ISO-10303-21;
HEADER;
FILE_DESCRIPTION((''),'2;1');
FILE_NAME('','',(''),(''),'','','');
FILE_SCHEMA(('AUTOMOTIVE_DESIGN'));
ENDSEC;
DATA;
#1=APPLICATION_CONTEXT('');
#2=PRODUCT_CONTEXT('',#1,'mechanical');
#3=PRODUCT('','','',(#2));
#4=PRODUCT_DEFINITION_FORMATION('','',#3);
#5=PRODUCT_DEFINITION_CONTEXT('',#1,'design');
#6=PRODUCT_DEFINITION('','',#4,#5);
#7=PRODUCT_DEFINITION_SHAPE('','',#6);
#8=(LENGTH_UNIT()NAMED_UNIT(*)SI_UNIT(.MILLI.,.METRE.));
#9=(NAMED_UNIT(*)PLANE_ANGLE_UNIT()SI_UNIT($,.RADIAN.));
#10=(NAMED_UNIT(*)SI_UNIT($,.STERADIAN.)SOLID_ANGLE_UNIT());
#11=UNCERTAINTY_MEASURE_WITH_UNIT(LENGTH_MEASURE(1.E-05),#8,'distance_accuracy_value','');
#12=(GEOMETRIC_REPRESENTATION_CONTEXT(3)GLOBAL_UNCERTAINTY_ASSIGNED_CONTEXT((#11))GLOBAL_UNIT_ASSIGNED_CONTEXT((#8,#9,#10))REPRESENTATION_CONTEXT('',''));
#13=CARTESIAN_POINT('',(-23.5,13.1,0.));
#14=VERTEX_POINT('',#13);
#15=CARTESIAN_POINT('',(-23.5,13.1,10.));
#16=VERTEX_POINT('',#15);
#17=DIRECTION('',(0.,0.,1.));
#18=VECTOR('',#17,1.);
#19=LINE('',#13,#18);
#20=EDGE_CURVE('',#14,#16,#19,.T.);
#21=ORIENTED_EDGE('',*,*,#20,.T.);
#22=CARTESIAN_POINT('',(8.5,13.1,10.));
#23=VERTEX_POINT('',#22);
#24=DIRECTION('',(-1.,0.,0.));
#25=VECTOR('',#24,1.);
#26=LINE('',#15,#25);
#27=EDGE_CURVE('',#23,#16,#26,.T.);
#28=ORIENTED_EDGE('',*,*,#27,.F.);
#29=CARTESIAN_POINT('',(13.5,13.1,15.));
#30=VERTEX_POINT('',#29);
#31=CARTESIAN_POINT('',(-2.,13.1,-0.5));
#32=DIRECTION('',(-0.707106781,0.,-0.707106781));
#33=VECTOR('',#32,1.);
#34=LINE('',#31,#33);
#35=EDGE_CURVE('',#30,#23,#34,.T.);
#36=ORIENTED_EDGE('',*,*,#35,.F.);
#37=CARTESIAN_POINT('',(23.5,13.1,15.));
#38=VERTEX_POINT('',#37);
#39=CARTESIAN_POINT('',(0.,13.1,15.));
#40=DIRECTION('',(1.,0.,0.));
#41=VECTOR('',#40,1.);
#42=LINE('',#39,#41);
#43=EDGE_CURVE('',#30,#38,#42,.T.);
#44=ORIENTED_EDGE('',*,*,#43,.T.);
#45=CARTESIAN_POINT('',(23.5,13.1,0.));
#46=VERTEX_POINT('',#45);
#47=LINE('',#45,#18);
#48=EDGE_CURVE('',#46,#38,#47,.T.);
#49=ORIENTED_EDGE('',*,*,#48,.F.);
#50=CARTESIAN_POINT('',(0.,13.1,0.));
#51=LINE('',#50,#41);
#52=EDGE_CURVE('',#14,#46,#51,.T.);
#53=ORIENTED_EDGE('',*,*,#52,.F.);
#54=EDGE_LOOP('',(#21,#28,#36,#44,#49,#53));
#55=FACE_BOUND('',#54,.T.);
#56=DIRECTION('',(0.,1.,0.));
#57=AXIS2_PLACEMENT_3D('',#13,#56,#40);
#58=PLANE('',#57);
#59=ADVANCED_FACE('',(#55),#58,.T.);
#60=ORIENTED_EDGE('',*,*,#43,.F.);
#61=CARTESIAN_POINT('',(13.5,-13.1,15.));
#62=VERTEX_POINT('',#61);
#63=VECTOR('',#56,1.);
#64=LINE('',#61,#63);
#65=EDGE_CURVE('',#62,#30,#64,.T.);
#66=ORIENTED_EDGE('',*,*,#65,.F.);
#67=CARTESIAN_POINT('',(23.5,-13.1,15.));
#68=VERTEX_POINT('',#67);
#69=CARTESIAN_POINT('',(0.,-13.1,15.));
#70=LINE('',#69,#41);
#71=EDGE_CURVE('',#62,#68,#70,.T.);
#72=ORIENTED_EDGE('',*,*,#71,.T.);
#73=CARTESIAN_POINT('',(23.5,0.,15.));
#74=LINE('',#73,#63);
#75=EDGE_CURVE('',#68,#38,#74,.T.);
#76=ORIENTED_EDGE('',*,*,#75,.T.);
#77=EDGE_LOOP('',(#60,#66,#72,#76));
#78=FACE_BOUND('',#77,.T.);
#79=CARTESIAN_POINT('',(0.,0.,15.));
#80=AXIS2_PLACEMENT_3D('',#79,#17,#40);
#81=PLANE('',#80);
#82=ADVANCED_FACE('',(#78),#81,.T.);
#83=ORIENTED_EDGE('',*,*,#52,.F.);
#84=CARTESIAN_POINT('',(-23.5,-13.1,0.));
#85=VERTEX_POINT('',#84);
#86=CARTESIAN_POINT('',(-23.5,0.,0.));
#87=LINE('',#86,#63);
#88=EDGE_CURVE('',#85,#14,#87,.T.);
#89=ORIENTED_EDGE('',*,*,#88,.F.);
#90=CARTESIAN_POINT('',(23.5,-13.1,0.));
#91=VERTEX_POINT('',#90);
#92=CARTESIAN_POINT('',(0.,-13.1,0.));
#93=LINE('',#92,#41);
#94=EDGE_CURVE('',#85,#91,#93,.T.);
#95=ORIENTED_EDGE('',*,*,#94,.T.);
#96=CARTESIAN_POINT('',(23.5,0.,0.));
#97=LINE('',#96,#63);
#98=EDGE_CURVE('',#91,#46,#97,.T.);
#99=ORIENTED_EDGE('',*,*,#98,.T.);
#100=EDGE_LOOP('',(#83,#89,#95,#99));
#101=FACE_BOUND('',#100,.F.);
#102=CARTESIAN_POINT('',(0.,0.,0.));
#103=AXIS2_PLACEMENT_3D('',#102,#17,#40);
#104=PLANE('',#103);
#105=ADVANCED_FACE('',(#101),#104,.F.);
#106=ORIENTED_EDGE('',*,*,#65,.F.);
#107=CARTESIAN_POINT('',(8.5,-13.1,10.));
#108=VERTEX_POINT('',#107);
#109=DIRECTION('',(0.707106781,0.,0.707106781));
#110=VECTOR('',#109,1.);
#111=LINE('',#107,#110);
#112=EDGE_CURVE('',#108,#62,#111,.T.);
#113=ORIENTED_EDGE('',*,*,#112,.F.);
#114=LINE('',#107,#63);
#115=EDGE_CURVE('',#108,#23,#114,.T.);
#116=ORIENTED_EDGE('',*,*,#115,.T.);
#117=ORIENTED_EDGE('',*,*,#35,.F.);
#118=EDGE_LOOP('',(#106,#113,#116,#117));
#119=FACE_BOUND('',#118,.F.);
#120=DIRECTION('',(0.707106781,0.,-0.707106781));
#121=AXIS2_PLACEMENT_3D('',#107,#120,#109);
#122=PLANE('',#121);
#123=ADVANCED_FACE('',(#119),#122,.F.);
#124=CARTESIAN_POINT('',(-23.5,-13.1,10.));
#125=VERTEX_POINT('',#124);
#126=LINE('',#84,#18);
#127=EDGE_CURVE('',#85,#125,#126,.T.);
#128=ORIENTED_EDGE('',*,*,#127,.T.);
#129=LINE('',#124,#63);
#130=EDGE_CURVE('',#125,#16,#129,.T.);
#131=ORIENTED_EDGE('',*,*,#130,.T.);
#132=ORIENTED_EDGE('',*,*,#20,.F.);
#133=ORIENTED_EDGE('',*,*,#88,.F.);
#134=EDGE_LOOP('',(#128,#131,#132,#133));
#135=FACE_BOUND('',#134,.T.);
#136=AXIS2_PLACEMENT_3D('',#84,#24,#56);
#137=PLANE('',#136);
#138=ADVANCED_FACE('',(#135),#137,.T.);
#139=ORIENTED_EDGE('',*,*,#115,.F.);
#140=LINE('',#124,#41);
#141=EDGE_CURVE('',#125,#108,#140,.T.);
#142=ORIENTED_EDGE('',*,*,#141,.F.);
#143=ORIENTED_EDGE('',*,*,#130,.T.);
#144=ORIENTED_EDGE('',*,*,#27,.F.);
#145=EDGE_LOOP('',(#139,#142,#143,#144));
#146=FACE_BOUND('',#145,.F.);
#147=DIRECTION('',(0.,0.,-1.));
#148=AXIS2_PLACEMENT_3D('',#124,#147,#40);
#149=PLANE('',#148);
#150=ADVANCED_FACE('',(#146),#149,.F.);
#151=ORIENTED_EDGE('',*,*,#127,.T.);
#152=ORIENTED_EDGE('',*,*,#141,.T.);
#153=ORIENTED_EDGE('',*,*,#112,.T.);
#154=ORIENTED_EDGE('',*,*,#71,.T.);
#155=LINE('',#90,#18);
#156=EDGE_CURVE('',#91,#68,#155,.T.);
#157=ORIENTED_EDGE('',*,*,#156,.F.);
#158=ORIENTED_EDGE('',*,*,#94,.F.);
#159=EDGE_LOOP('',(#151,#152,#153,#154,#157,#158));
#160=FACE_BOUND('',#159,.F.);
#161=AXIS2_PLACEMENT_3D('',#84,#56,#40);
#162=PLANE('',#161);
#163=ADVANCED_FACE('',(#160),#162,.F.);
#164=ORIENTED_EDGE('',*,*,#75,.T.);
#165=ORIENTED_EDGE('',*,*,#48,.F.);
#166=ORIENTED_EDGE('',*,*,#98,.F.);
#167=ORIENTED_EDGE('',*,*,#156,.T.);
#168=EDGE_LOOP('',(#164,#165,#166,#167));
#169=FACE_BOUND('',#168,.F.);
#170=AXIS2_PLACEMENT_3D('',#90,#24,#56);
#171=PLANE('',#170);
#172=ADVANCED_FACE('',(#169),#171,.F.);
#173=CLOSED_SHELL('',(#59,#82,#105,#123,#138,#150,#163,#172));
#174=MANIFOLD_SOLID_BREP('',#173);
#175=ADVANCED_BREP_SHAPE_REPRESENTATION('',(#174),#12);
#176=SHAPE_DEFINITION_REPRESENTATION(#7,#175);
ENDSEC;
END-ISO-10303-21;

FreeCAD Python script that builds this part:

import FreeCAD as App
import Part
import Sketcher
Q = App.Units.Quantity


def add_polygon(sketch, points):
    """Adds a closed chain of lines whose ends are joined by coincident constraints."""
    first, n = sketch.GeometryCount, len(points)
    for a, b in zip(points, points[1:] + points[:1]):
        sketch.addGeometry(Part.LineSegment(App.Vector(*a, 0), App.Vector(*b, 0)), False)
    for i in range(n):
        sketch.addConstraint(Sketcher.Constraint("Coincident", first + i, 2, first + (i + 1) % n, 1))

doc = App.newDocument("Part")
body = doc.addObject("PartDesign::Body", "Body")

sketch1 = body.newObject("Sketcher::SketchObject", "Sketch")
sketch1.AttachmentSupport = (doc.getObject("XY_Plane"), [""])
sketch1.MapMode = "FlatFace"
add_polygon(sketch1, [(-24, 13), (-24, -13), (24, -13), (24, 13)])
sketch1.addConstraint(Sketcher.Constraint("Vertical", 0))
sketch1.addConstraint(Sketcher.Constraint("Horizontal", 1))
sketch1.addConstraint(Sketcher.Constraint("Vertical", 2))
sketch1.addConstraint(Sketcher.Constraint("Horizontal", 3))
sketch1.addConstraint(Sketcher.Constraint("Symmetric", 0, 2, 2, 2, -1, 1))
sketch1.addConstraint(Sketcher.Constraint("DistanceX", 1, 1, 1, 2, Q("47 mm")))
sketch1.addConstraint(Sketcher.Constraint("DistanceY", 0, 2, 0, 1, Q("26.2 mm")))
pad1 = body.newObject("PartDesign::Pad", "Pad")
pad1.Profile = sketch1
pad1.Length = 15

sketch2 = body.newObject("Sketcher::SketchObject", "Sketch001")
sketch2.AttachmentSupport = (doc.getObject("XZ_Plane"), [""])
sketch2.MapMode = "FlatFace"
sketch2.AttachmentOffset = App.Placement(App.Vector(0, 0, 13.1), App.Rotation())
add_polygon(sketch2, [(8, 10), (14, 15), (-24, 15), (-24, 10)])
sketch2.addConstraint(Sketcher.Constraint("Horizontal", 1))
sketch2.addConstraint(Sketcher.Constraint("Vertical", 2))
sketch2.addConstraint(Sketcher.Constraint("Horizontal", 3))
sketch2.addConstraint(Sketcher.Constraint("DistanceX", 1, 2, 1, 1, Q("37 mm")))
sketch2.addConstraint(Sketcher.Constraint("DistanceX", 3, 1, 3, 2, Q("32 mm")))
sketch2.addConstraint(Sketcher.Constraint("DistanceY", 2, 2, 2, 1, Q("5 mm")))
sketch2.addConstraint(Sketcher.Constraint("DistanceY", -1, 1, 0, 2, Q("15 mm")))
sketch2.addConstraint(Sketcher.Constraint("DistanceX", -1, 1, 0, 2, Q("13.5 mm")))
pocket1 = body.newObject("PartDesign::Pocket", "Pocket")
pocket1.Profile = sketch2
pocket1.Type = "ThroughAll"

doc.recompute()
